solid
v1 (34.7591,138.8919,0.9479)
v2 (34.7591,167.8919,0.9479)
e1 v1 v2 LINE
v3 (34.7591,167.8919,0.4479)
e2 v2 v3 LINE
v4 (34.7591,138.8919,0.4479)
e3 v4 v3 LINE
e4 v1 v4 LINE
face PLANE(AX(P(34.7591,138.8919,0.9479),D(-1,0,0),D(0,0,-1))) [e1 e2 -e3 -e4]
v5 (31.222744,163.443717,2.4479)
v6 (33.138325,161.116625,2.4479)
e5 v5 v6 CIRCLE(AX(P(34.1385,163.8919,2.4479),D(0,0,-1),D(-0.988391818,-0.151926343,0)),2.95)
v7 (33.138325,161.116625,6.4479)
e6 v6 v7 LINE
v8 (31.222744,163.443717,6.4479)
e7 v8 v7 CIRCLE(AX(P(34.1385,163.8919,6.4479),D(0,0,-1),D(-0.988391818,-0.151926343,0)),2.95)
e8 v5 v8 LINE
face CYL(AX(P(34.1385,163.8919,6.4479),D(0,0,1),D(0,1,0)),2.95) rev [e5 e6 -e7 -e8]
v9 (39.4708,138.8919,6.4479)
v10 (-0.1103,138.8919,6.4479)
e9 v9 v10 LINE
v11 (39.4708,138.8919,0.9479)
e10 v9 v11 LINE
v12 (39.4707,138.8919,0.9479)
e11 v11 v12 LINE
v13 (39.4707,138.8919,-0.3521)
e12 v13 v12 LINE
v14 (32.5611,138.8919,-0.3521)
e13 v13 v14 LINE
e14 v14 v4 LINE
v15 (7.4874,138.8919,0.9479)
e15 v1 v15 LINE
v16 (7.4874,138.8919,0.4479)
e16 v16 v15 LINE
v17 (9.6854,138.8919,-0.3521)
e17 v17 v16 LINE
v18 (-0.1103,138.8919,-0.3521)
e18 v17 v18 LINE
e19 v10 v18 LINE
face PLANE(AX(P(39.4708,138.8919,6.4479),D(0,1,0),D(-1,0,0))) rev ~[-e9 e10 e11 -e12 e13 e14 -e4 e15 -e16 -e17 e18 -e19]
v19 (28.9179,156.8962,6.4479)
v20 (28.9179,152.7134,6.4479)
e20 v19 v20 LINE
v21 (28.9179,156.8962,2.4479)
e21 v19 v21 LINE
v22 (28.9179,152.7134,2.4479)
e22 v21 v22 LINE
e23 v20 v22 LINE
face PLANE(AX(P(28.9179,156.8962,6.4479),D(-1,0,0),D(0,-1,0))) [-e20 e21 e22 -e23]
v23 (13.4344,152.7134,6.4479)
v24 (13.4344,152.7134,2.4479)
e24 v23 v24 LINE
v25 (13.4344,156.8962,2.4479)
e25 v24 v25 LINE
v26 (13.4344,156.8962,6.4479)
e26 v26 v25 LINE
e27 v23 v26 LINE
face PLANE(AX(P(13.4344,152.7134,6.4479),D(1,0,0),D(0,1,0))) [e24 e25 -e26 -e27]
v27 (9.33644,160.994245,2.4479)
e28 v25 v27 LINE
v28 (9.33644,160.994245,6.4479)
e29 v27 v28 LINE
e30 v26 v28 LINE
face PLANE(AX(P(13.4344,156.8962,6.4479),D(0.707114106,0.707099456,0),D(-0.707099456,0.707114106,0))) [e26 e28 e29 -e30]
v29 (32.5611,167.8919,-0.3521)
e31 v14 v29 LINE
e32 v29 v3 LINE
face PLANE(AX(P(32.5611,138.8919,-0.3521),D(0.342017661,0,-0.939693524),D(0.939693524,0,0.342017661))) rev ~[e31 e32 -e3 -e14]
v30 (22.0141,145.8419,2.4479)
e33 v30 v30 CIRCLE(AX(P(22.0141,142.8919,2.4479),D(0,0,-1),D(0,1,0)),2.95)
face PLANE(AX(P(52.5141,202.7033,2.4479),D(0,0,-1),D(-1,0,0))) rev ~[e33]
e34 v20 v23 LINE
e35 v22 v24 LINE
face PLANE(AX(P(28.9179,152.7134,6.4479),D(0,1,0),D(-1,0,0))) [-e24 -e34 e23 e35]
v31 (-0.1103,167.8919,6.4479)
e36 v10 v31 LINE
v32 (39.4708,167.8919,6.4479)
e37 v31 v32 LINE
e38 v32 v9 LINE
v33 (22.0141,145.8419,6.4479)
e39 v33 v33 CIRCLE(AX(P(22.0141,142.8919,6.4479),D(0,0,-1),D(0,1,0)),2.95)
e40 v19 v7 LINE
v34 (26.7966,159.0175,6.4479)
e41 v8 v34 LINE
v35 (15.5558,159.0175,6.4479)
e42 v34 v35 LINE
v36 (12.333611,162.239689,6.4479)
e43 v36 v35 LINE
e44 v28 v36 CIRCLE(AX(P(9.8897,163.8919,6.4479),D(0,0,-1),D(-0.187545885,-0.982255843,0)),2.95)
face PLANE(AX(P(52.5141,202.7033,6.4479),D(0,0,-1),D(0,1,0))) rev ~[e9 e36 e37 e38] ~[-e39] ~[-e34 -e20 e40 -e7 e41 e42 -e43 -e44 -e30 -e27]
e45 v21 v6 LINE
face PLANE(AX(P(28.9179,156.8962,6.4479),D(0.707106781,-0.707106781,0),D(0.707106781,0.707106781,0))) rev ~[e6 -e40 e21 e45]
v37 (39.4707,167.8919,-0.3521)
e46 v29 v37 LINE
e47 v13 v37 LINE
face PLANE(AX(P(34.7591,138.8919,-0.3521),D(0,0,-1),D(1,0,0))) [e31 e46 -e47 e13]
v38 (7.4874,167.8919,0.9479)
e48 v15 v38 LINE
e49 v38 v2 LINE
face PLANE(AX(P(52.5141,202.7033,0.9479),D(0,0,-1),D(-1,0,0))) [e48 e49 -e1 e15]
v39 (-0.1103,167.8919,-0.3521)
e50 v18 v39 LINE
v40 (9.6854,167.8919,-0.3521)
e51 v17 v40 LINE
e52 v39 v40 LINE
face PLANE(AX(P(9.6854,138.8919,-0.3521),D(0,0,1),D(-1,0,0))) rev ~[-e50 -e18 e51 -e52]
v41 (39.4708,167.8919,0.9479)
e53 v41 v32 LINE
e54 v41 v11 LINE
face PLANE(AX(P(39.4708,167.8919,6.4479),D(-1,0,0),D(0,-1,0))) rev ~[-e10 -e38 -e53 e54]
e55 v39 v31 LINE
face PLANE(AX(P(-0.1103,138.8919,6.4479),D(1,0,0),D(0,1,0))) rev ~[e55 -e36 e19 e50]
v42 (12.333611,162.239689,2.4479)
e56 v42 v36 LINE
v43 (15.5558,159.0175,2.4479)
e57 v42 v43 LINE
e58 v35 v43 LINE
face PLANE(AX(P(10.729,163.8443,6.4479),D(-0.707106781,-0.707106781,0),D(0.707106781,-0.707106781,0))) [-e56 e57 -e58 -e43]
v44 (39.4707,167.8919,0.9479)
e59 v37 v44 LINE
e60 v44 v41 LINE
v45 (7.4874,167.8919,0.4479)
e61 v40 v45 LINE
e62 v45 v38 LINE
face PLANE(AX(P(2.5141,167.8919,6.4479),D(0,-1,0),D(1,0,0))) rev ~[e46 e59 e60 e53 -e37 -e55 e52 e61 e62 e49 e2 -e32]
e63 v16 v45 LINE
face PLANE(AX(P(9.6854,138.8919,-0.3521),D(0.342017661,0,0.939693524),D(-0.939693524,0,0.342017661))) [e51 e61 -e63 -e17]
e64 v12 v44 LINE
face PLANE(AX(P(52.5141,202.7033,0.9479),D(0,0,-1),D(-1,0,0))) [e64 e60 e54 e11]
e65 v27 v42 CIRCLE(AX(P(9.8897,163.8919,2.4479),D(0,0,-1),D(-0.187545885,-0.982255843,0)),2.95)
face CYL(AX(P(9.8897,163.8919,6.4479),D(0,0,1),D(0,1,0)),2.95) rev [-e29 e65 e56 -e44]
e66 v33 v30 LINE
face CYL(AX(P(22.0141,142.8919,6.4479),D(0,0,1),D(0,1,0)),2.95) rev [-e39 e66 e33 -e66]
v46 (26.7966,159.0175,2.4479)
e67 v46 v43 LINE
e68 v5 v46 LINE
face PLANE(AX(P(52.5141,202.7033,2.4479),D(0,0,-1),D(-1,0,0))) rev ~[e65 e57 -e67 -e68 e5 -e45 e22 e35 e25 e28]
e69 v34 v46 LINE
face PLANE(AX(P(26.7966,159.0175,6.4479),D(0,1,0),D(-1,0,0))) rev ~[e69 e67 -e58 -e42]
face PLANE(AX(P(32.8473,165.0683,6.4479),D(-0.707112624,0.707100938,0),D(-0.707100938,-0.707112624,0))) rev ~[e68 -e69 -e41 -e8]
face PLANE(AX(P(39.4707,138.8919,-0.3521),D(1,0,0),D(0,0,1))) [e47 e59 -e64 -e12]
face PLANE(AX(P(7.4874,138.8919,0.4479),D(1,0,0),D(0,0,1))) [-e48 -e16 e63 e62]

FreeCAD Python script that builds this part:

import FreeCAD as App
import Part
import Sketcher
Q = App.Units.Quantity

doc = App.newDocument("Part")
body = doc.addObject("PartDesign::Body", "Body")

# Sketch on XY plane
sketch1 = body.newObject("Sketcher::SketchObject", "Sketch")
sketch1.AttachmentSupport = (doc.getObject("XY_Plane"), [""])
sketch1.MapMode = "FlatFace"
sketch1.AttachmentOffset = App.Placement(App.Vector(0, 0, 6.4479), App.Rotation())
sketch1.addGeometry([
    Part.LineSegment(App.Vector(39.5, 167.9, 0), App.Vector(39.5, 138.9, 0)),  # 0
    Part.LineSegment(App.Vector(39.5, 138.9, 0), App.Vector(-0.1, 138.9, 0)),  # 1
    Part.LineSegment(App.Vector(-0.1, 138.9, 0), App.Vector(-0.1, 167.9, 0)),  # 2
    Part.LineSegment(App.Vector(-0.1, 167.9, 0), App.Vector(39.5, 167.9, 0)),  # 3
    Part.Circle(App.Vector(9.9, 163.9, 0), App.Vector(0, 0, 1), 3),  # 4
    Part.Circle(App.Vector(34.1, 163.9, 0), App.Vector(0, 0, 1), 3),  # 5
    Part.Circle(App.Vector(22, 142.9, 0), App.Vector(0, 0, 1), 3),  # 6
], False)
sketch1.addConstraint([
    Sketcher.Constraint("Coincident", 0, 2, 1, 1),
    Sketcher.Constraint("Coincident", 1, 2, 2, 1),
    Sketcher.Constraint("Coincident", 2, 2, 3, 1),
    Sketcher.Constraint("Coincident", 3, 2, 0, 1),
    Sketcher.Constraint("Vertical", 0),
    Sketcher.Constraint("Horizontal", 1),
    Sketcher.Constraint("Vertical", 2),
    Sketcher.Constraint("Horizontal", 3),
    Sketcher.Constraint("Equal", 4, 5),
    Sketcher.Constraint("Equal", 5, 6),
    Sketcher.Constraint("Horizontal", 4, 3, 5, 3),
    Sketcher.Constraint("Diameter", 4, 5.9),
    Sketcher.Constraint("DistanceY", 0, 2, 6, 3, 4.0),
    Sketcher.Constraint("DistanceX", 1, 2, 4, 3, 10.0),
    Sketcher.Constraint("DistanceY", 4, 3, 2, 2, 4.0),
    Sketcher.Constraint("DistanceY", 0, 2, 0, 1, 29.0),
    Sketcher.Constraint("DistanceX", 1, 2, 1, 1, 39.581),
    Sketcher.Constraint("DistanceY", -1, 1, 4, 3, 163.892),
    Sketcher.Constraint("DistanceX", -1, 1, 6, 3, 22.014),
    Sketcher.Constraint("DistanceX", -1, 1, 4, 3, 9.8897),
    Sketcher.Constraint("DistanceX", -1, 1, 5, 3, 34.1385),
])
pad1 = body.newObject("PartDesign::Pad", "Pad")
pad1.Profile = sketch1
pad1.Length = 4
pad1.Reversed = True

# Sketch on XY plane
sketch2 = body.newObject("Sketcher::SketchObject", "Sketch001")
sketch2.AttachmentSupport = (doc.getObject("XY_Plane"), [""])
sketch2.MapMode = "FlatFace"
sketch2.AttachmentOffset = App.Placement(App.Vector(0, 0, 2.4479), App.Rotation())
sketch2.addGeometry([
    Part.LineSegment(App.Vector(0, 168, 0), App.Vector(39, 168, 0)),
    Part.LineSegment(App.Vector(39, 168, 0), App.Vector(39, 139, 0)),
    Part.LineSegment(App.Vector(39, 139, 0), App.Vector(0, 139, 0)),
    Part.LineSegment(App.Vector(0, 139, 0), App.Vector(0, 168, 0)),
], False)
sketch2.addConstraint([
    Sketcher.Constraint("Coincident", 0, 2, 1, 1),
    Sketcher.Constraint("Coincident", 1, 2, 2, 1),
    Sketcher.Constraint("Coincident", 2, 2, 3, 1),
    Sketcher.Constraint("Coincident", 3, 2, 0, 1),
    Sketcher.Constraint("Horizontal", 0),
    Sketcher.Constraint("Vertical", 1),
    Sketcher.Constraint("Horizontal", 2),
    Sketcher.Constraint("Vertical", 3),
    Sketcher.Constraint("DistanceY", 1, 2, 1, 1, 29.0),
    Sketcher.Constraint("DistanceX", 0, 1, 0, 2, 39.581),
    Sketcher.Constraint("DistanceY", -1, 1, 0, 2, 167.892),
    Sketcher.Constraint("DistanceX", -1, 1, 0, 2, 39.4708),
])
pad2 = body.newObject("PartDesign::Pad", "Pad001")
pad2.Profile = sketch2
pad2.Length = 1.5
pad2.Reversed = True

# Sketch on XZ plane
sketch3 = body.newObject("Sketcher::SketchObject", "Sketch002")
sketch3.AttachmentSupport = (doc.getObject("XZ_Plane"), [""])
sketch3.MapMode = "FlatFace"
sketch3.AttachmentOffset = App.Placement(App.Vector(0, 0, -138.8919), App.Rotation())
sketch3.addGeometry([
    Part.LineSegment(App.Vector(39.47, -0.35, 0), App.Vector(39.47, 0.95, 0)),  # 0
    Part.LineSegment(App.Vector(39.47, 0.95, 0), App.Vector(34.76, 0.95, 0)),  # 1
    Part.LineSegment(App.Vector(34.76, 0.95, 0), App.Vector(34.76, 0.45, 0)),  # 2
    Part.LineSegment(App.Vector(34.76, 0.45, 0), App.Vector(32.56, -0.35, 0)),  # 3
    Part.LineSegment(App.Vector(32.56, -0.35, 0), App.Vector(39.47, -0.35, 0)),  # 4
    Part.LineSegment(App.Vector(7.49, 0.95, 0), App.Vector(-0.11, 0.95, 0)),  # 5
    Part.LineSegment(App.Vector(-0.11, 0.95, 0), App.Vector(-0.11, -0.35, 0)),  # 6
    Part.LineSegment(App.Vector(-0.11, -0.35, 0), App.Vector(9.69, -0.35, 0)),  # 7
    Part.LineSegment(App.Vector(9.69, -0.35, 0), App.Vector(7.49, 0.45, 0)),  # 8
    Part.LineSegment(App.Vector(7.49, 0.45, 0), App.Vector(7.49, 0.95, 0)),  # 9
], False)
sketch3.addConstraint([
    Sketcher.Constraint("Coincident", 0, 2, 1, 1),
    Sketcher.Constraint("Coincident", 1, 2, 2, 1),
    Sketcher.Constraint("Coincident", 2, 2, 3, 1),
    Sketcher.Constraint("Coincident", 3, 2, 4, 1),
    Sketcher.Constraint("Coincident", 4, 2, 0, 1),
    Sketcher.Constraint("Coincident", 5, 2, 6, 1),
    Sketcher.Constraint("Coincident", 6, 2, 7, 1),
    Sketcher.Constraint("Coincident", 7, 2, 8, 1),
    Sketcher.Constraint("Coincident", 8, 2, 9, 1),
    Sketcher.Constraint("Coincident", 9, 2, 5, 1),
    Sketcher.Constraint("Vertical", 0),
    Sketcher.Constraint("Horizontal", 1),
    Sketcher.Constraint("Vertical", 2),
    Sketcher.Constraint("Horizontal", 4),
    Sketcher.Constraint("Horizontal", 5),
    Sketcher.Constraint("Vertical", 6),
    Sketcher.Constraint("Horizontal", 7),
    Sketcher.Constraint("Vertical", 9),
    Sketcher.Constraint("Horizontal", 1, 2, 5, 2),
    Sketcher.Constraint("Horizontal", 4, 2, 6, 2),
    Sketcher.Constraint("Horizontal", 2, 2, 8, 2),
    Sketcher.Constraint("Equal", 3, 8),
    Sketcher.Constraint("DistanceY", 0, 1, 0, 2, 1.3),
    Sketcher.Constraint("DistanceY", 2, 2, 2, 1, 0.5),
    Sketcher.Constraint("Angle", 3, Q("-160.0002 deg")),
    Sketcher.Constraint("DistanceX", 1, 2, 1, 1, 4.7116),
    Sketcher.Constraint("DistanceX", 5, 2, 5, 1, 7.5977),
    Sketcher.Constraint("DistanceY", -1, 1, 0, 2, 0.948),
    Sketcher.Constraint("DistanceX", -1, 1, 1, 2, 34.759),
    Sketcher.Constraint("DistanceX", 5, 2, 0, 2, 39.581),
])
pad3 = body.newObject("PartDesign::Pad", "Pad002")
pad3.Profile = sketch3
pad3.Length = 29
pad3.Reversed = True

# Sketch on XY plane
sketch4 = body.newObject("Sketcher::SketchObject", "Sketch003")
sketch4.AttachmentSupport = (doc.getObject("XY_Plane"), [""])
sketch4.MapMode = "FlatFace"
sketch4.AttachmentOffset = App.Placement(App.Vector(0, 0, 6.4479), App.Rotation())
sketch4.addGeometry([
    Part.LineSegment(App.Vector(32.8, 165.1, 0), App.Vector(26.8, 159, 0)),  # 0
    Part.LineSegment(App.Vector(26.8, 159, 0), App.Vector(15.6, 159, 0)),  # 1
    Part.LineSegment(App.Vector(15.6, 159, 0), App.Vector(10.7, 163.8, 0)),  # 2
    Part.LineSegment(App.Vector(10.7, 163.8, 0), App.Vector(8.6, 161.7, 0)),  # 3
    Part.LineSegment(App.Vector(8.6, 161.7, 0), App.Vector(13.4, 156.9, 0)),  # 4
    Part.LineSegment(App.Vector(13.4, 156.9, 0), App.Vector(13.4, 152.7, 0)),  # 5
    Part.LineSegment(App.Vector(13.4, 152.7, 0), App.Vector(28.9, 152.7, 0)),  # 6
    Part.LineSegment(App.Vector(28.9, 152.7, 0), App.Vector(28.9, 156.9, 0)),  # 7
    Part.LineSegment(App.Vector(28.9, 156.9, 0), App.Vector(35, 162.9, 0)),  # 8
    Part.LineSegment(App.Vector(35, 162.9, 0), App.Vector(32.8, 165.1, 0)),  # 9
], False)
sketch4.addConstraint([
    Sketcher.Constraint("Coincident", 0, 2, 1, 1),
    Sketcher.Constraint("Coincident", 1, 2, 2, 1),
    Sketcher.Constraint("Coincident", 2, 2, 3, 1),
    Sketcher.Constraint("Coincident", 3, 2, 4, 1),
    Sketcher.Constraint("Coincident", 4, 2, 5, 1),
    Sketcher.Constraint("Coincident", 5, 2, 6, 1),
    Sketcher.Constraint("Coincident", 6, 2, 7, 1),
    Sketcher.Constraint("Coincident", 7, 2, 8, 1),
    Sketcher.Constraint("Coincident", 8, 2, 9, 1),
    Sketcher.Constraint("Coincident", 9, 2, 0, 1),
    Sketcher.Constraint("Horizontal", 1),
    Sketcher.Constraint("Vertical", 5),
    Sketcher.Constraint("Horizontal", 6),
    Sketcher.Constraint("Vertical", 7),
    Sketcher.Constraint("Perpendicular", 0, 2),
    Sketcher.Constraint("Perpendicular", 2, 3),
    Sketcher.Constraint("Perpendicular", 3, 4),
    Sketcher.Constraint("Perpendicular", 4, 8),
    Sketcher.Constraint("Perpendicular", 8, 9),
    Sketcher.Constraint("Horizontal", 4, 2, 7, 2),
    Sketcher.Constraint("Equal", 2, 4),
    Sketcher.Constraint("Equal", 0, 8),
    Sketcher.Constraint("Equal", 3, 9),
    Sketcher.Constraint("Distance", 3, 3.0),
    Sketcher.Constraint("Distance", 0, 8.557),
    Sketcher.Constraint("Distance", 4, 6.826),
    Sketcher.Constraint("DistanceX", 1, 2, 1, 1, 11.2408),
    Sketcher.Constraint("DistanceY", 5, 2, 5, 1, 4.1828),
    Sketcher.Constraint("DistanceX", -1, 1, 2, 2, 10.729),
    Sketcher.Constraint("DistanceY", -1, 1, 3, 2, 161.723),
])
pocket1 = body.newObject("PartDesign::Pocket", "Pocket")
pocket1.Profile = sketch4
pocket1.Length = 4

doc.recompute()
